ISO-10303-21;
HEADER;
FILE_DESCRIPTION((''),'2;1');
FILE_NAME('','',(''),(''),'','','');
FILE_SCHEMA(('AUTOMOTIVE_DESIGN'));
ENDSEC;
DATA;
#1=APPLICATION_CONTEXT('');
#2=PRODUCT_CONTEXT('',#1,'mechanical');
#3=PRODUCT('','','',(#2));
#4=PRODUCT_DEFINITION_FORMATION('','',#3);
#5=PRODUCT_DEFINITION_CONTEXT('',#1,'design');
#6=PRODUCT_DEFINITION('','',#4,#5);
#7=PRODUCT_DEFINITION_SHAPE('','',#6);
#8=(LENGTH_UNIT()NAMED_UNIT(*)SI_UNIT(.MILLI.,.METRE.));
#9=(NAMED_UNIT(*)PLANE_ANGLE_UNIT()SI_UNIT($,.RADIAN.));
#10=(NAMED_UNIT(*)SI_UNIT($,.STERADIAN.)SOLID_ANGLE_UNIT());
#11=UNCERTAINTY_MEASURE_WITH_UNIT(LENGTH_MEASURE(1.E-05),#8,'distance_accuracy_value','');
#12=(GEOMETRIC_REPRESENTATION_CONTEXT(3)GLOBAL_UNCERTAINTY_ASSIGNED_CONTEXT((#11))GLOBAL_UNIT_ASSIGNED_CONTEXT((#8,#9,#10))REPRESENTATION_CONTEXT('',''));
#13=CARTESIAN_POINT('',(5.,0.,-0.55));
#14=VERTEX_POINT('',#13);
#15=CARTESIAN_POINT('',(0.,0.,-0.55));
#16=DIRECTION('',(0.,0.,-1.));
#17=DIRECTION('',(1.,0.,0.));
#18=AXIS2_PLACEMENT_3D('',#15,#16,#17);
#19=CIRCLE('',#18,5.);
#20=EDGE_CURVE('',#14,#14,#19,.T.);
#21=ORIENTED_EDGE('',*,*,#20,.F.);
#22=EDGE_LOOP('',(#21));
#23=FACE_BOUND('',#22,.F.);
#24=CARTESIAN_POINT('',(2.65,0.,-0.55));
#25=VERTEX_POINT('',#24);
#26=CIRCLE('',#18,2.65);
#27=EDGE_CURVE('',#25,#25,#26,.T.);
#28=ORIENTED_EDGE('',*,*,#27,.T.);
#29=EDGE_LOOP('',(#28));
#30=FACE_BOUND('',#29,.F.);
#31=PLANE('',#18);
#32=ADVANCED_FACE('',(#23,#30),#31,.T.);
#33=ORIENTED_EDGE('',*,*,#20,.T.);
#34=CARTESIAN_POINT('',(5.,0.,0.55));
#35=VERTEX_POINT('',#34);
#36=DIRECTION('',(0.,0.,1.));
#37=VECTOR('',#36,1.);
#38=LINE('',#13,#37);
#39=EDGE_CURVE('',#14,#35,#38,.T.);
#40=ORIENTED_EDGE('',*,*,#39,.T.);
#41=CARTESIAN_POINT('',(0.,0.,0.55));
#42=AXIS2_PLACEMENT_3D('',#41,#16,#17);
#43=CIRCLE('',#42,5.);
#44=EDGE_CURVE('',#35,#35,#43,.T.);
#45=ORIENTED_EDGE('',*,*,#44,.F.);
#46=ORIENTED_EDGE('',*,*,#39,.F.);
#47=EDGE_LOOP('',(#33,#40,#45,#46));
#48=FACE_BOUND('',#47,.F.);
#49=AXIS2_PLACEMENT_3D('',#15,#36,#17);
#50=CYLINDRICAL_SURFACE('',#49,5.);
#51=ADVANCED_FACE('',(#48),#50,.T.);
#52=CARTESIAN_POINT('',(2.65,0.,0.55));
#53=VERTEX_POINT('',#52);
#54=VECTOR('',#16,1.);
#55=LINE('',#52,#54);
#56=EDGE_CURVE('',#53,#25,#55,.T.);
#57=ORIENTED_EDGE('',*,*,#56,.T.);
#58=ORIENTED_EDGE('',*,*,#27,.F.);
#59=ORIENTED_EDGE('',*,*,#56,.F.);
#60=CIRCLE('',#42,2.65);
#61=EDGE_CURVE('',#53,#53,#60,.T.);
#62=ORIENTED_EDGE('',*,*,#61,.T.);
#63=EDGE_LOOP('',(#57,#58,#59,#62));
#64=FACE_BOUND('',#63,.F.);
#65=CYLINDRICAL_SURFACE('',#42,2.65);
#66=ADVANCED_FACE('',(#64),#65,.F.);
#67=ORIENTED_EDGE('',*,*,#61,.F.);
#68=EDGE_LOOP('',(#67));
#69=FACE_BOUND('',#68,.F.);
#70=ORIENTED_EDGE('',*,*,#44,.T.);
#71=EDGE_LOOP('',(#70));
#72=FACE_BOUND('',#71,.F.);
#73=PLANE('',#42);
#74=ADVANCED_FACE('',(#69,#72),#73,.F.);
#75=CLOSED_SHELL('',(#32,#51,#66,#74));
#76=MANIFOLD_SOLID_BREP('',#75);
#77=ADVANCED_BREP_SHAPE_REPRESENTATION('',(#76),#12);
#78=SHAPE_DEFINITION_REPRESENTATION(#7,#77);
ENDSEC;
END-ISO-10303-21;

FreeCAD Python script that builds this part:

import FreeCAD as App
import Part
import Sketcher

V = App.Vector
Q = App.Units.Quantity

doc = App.newDocument("Part")
body = doc.addObject("PartDesign::Body", "Body")

# Sketch on XZ plane
sketch1 = doc.addObject("Sketcher::SketchObject", "Sketch")
body.addObject(sketch1)
sketch1.AttachmentSupport = (doc.XZ_Plane, [""])
sketch1.MapMode = "FlatFace"
sketch1.addGeometry(Part.LineSegment(V(2.65, 0.55, 0), V(2.65, -0.55, 0)), False)
sketch1.addGeometry(Part.LineSegment(V(2.65, -0.55, 0), V(5, -0.55, 0)), False)
sketch1.addGeometry(Part.LineSegment(V(5, -0.55, 0), V(5, 0.55, 0)), False)
sketch1.addGeometry(Part.LineSegment(V(5, 0.55, 0), V(2.65, 0.55, 0)), False)
sketch1.addConstraint(Sketcher.Constraint("Coincident", 0, 2, 1, 1))
sketch1.addConstraint(Sketcher.Constraint("Coincident", 1, 2, 2, 1))
sketch1.addConstraint(Sketcher.Constraint("Coincident", 2, 2, 3, 1))
sketch1.addConstraint(Sketcher.Constraint("Coincident", 3, 2, 0, 1))
sketch1.addConstraint(Sketcher.Constraint("Vertical", 0))
sketch1.addConstraint(Sketcher.Constraint("Horizontal", 1))
sketch1.addConstraint(Sketcher.Constraint("Vertical", 2))
sketch1.addConstraint(Sketcher.Constraint("Horizontal", 3))
sketch1.addConstraint(Sketcher.Constraint("DistanceX", -1, 1, 1, 2, Q("5 mm")))
sketch1.addConstraint(Sketcher.Constraint("DistanceY", 0, 2, 0, 1, Q("1.1 mm")))
sketch1.addConstraint(Sketcher.Constraint("DistanceX", 1, 1, 1, 2, Q("2.35 mm")))
sketch1.addConstraint(Sketcher.Constraint("DistanceY", 0, 2, -1, 1, Q("0.55 mm")))
revolution = doc.addObject("PartDesign::Revolution", "Revolution")
body.addObject(revolution)
revolution.Profile = sketch1
revolution.ReferenceAxis = (sketch1, ["V_Axis"])
revolution.Angle = 360

doc.recompute()
